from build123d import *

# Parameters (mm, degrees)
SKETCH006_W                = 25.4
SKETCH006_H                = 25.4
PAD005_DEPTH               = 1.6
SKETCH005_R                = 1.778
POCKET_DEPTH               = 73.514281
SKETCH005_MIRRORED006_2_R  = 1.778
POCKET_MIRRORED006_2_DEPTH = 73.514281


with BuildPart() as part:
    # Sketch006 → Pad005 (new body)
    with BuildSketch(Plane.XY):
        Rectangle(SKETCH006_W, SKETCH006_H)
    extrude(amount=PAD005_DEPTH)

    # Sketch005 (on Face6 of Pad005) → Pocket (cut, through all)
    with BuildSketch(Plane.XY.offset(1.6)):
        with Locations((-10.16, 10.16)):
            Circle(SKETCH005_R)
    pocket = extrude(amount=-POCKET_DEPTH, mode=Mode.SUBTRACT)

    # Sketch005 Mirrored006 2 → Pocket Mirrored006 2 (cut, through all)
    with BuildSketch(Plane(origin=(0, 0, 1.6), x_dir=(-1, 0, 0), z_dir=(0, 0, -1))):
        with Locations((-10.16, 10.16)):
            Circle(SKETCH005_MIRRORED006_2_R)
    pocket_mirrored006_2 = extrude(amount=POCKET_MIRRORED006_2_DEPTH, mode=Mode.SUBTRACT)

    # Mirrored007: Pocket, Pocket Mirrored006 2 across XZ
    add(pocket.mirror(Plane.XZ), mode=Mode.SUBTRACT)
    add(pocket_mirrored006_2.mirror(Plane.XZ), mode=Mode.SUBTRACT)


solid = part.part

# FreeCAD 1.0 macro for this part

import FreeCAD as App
import Part
import Sketcher

V = App.Vector
Q = App.Units.Quantity


def add_polygon(sketch, points):
    """Adds a closed chain of lines whose ends are joined by coincident constraints."""
    first, n = sketch.GeometryCount, len(points)
    for a, b in zip(points, points[1:] + points[:1]):
        sketch.addGeometry(Part.LineSegment(App.Vector(*a, 0), App.Vector(*b, 0)), False)
    for i in range(n):
        sketch.addConstraint(Sketcher.Constraint("Coincident", first + i, 2, first + (i + 1) % n, 1))

doc = App.newDocument("Part")
body = doc.addObject("PartDesign::Body", "Body")

# Sketch on XY plane
sketch1 = body.newObject("Sketcher::SketchObject", "Sketch")
sketch1.AttachmentSupport = (doc.getObject("XY_Plane"), [""])
sketch1.MapMode = "FlatFace"
add_polygon(sketch1, [(-12.7, 12.7), (-12.7, -12.7), (12.7, -12.7), (12.7, 12.7)])  # lines 0-3
sketch1.addConstraint(Sketcher.Constraint("Vertical", 0))
sketch1.addConstraint(Sketcher.Constraint("Horizontal", 1))
sketch1.addConstraint(Sketcher.Constraint("Vertical", 2))
sketch1.addConstraint(Sketcher.Constraint("Horizontal", 3))
sketch1.addConstraint(Sketcher.Constraint("Symmetric", 0, 2, 2, 2, -1, 1))
sketch1.addConstraint(Sketcher.Constraint("Equal", 3, 0))
sketch1.addConstraint(Sketcher.Constraint("DistanceX", 1, 1, 1, 2, Q("1 in")))
pad1 = body.newObject("PartDesign::Pad", "Pad")
pad1.Profile = sketch1
pad1.Length = 1.6

# Sketch on XY plane
sketch2 = body.newObject("Sketcher::SketchObject", "Sketch001")
sketch2.AttachmentSupport = (doc.getObject("XY_Plane"), [""])
sketch2.MapMode = "FlatFace"
sketch2.AttachmentOffset = App.Placement(V(0, 0, 1.6), App.Rotation())
sketch2.addGeometry(Part.Circle(V(-10.16, 10.16, 0), V(0, 0, 1), 1.778), False)
sketch2.addConstraint(Sketcher.Constraint("Diameter", 0, Q("0.14 in")))
sketch2.addConstraint(Sketcher.Constraint("DistanceX", 0, 3, -1, 1, Q("0.4 in")))
sketch2.addConstraint(Sketcher.Constraint("DistanceY", -1, 1, 0, 3, Q("0.4 in")))
pocket1 = body.newObject("PartDesign::Pocket", "Pocket")
pocket1.Profile = sketch2
pocket1.Type = "ThroughAll"

# Sketch on XY plane
sketch3 = body.newObject("Sketcher::SketchObject", "Sketch002")
sketch3.AttachmentSupport = (doc.getObject("XY_Plane"), [""])
sketch3.MapMode = "FlatFace"
sketch3.AttachmentOffset = App.Placement(V(0, 0, 1.6), App.Rotation())
sketch3.addGeometry(Part.Circle(V(10.16, 10.16, 0), V(0, 0, 1), 1.778), False)
sketch3.addConstraint(Sketcher.Constraint("Diameter", 0, Q("0.14 in")))
sketch3.addConstraint(Sketcher.Constraint("DistanceX", -1, 1, 0, 3, Q("0.4 in")))
sketch3.addConstraint(Sketcher.Constraint("DistanceY", -1, 1, 0, 3, Q("0.4 in")))
pocket2 = body.newObject("PartDesign::Pocket", "Pocket001")
pocket2.Profile = sketch3
pocket2.Type = "ThroughAll"
doc.recompute()

mirrored = body.newObject("PartDesign::Mirrored", "Mirrored")
mirrored.Originals = [pocket1, pocket2]
mirrored.MirrorPlane = (doc.getObject("XZ_Plane"), [""])
body.Tip = mirrored

doc.recompute()
